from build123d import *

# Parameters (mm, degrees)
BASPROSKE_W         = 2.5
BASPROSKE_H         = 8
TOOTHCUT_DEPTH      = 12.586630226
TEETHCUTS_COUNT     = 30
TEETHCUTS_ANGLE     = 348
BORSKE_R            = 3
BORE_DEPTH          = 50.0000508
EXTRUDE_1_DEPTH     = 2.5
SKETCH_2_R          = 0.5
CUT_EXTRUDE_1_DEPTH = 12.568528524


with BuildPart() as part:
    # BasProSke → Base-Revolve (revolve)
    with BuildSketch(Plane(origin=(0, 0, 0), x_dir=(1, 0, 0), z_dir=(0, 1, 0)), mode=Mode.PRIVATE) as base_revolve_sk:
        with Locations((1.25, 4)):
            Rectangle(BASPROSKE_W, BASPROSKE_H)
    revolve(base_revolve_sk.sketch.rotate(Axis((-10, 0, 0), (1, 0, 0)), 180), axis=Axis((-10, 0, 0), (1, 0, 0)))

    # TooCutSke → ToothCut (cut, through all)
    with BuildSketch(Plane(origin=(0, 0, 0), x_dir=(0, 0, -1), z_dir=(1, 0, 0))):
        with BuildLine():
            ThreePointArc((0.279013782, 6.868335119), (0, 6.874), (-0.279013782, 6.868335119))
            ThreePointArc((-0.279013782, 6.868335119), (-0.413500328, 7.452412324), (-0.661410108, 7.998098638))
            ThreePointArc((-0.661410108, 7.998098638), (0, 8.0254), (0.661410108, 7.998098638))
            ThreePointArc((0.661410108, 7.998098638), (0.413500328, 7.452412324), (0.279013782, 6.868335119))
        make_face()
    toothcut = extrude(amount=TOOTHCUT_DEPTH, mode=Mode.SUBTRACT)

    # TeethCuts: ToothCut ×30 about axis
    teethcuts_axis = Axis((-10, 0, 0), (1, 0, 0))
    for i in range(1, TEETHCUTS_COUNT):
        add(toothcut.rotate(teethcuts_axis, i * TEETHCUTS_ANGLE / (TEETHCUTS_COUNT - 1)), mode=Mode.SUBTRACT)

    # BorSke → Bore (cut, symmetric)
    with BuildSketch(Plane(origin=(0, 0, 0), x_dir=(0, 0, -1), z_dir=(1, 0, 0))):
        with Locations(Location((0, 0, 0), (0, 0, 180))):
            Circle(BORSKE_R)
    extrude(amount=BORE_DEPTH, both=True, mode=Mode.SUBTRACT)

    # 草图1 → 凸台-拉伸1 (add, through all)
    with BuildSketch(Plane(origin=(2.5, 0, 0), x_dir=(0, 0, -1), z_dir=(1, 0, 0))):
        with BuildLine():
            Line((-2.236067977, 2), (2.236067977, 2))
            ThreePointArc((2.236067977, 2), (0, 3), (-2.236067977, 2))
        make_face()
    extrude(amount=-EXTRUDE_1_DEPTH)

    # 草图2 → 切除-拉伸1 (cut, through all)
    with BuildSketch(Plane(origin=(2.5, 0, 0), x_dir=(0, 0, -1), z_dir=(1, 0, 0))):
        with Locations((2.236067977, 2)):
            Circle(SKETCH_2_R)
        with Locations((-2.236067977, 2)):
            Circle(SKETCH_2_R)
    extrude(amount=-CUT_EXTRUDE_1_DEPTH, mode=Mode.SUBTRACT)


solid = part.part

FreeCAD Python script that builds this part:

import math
import FreeCAD as App
import Part
import Sketcher
Q = App.Units.Quantity

doc = App.newDocument("Part")
body = doc.addObject("PartDesign::Body", "Body")

sketch1 = body.newObject("Sketcher::SketchObject", "Sketch")
sketch1.AttachmentSupport = (doc.getObject("XZ_Plane"), [""])
sketch1.MapMode = "FlatFace"
sketch1.addGeometry(Part.LineSegment(App.Vector(0, -8, 0), App.Vector(0, 0, 0)), False)
sketch1.addGeometry(Part.LineSegment(App.Vector(0, 0, 0), App.Vector(2.5, 0, 0)), False)
sketch1.addGeometry(Part.LineSegment(App.Vector(2.5, 0, 0), App.Vector(2.5, -8, 0)), False)
sketch1.addGeometry(Part.LineSegment(App.Vector(2.5, -8, 0), App.Vector(0, -8, 0)), False)
sketch1.addConstraint(Sketcher.Constraint("Coincident", 0, 2, 1, 1))
sketch1.addConstraint(Sketcher.Constraint("Coincident", 1, 2, 2, 1))
sketch1.addConstraint(Sketcher.Constraint("Coincident", 2, 2, 3, 1))
sketch1.addConstraint(Sketcher.Constraint("Coincident", 3, 2, 0, 1))
sketch1.addConstraint(Sketcher.Constraint("Vertical", 0))
sketch1.addConstraint(Sketcher.Constraint("Horizontal", 1))
sketch1.addConstraint(Sketcher.Constraint("Vertical", 2))
sketch1.addConstraint(Sketcher.Constraint("Horizontal", 3))
sketch1.addConstraint(Sketcher.Constraint("Coincident", 0, 2, -1, 1))
sketch1.addConstraint(Sketcher.Constraint("DistanceY", 0, 1, 0, 2, Q("8 mm")))
sketch1.addConstraint(Sketcher.Constraint("DistanceX", 1, 1, 1, 2, Q("2.5 mm")))
revolution = body.newObject("PartDesign::Revolution", "Revolution")
revolution.Profile = sketch1
revolution.ReferenceAxis = (sketch1, ["H_Axis"])
revolution.Angle = 360

sketch2 = body.newObject("Sketcher::SketchObject", "Sketch001")
sketch2.AttachmentSupport = (doc.getObject("YZ_Plane"), [""])
sketch2.MapMode = "FlatFace"
sketch2.addGeometry(Part.ArcOfCircle(Part.Circle(App.Vector(0, 0, 0), App.Vector(0, 0, 1), 6.9), math.radians(-2.33), math.radians(2.33)), False)
sketch2.addGeometry(Part.ArcOfCircle(Part.Circle(App.Vector(6.5, -3.3, 0), App.Vector(0, 0, 1), 3), math.radians(60), math.radians(83)), False)
sketch2.addGeometry(Part.ArcOfCircle(Part.Circle(App.Vector(0, 0, 0), App.Vector(0, 0, 1), 8), math.radians(-4.73), math.radians(4.73)), False)
sketch2.addGeometry(Part.ArcOfCircle(Part.Circle(App.Vector(6.5, 3.3, 0), App.Vector(0, 0, 1), 3), math.radians(-83), math.radians(-60)), False)
sketch2.addConstraint(Sketcher.Constraint("Coincident", 0, 1, 1, 2))
sketch2.addConstraint(Sketcher.Constraint("Coincident", 1, 1, 2, 1))
sketch2.addConstraint(Sketcher.Constraint("Coincident", 2, 2, 3, 2))
sketch2.addConstraint(Sketcher.Constraint("Coincident", 3, 1, 0, 2))
sketch2.addConstraint(Sketcher.Constraint("Coincident", 0, 3, -1, 1))
sketch2.addConstraint(Sketcher.Constraint("Coincident", 2, 3, -1, 1))
sketch2.addConstraint(Sketcher.Constraint("Equal", 1, 3))
sketch2.addConstraint(Sketcher.Constraint("Symmetric", 1, 3, 3, 3, -1))
sketch2.addConstraint(Sketcher.Constraint("Radius", 1, Q("3 mm")))
sketch2.addConstraint(Sketcher.Constraint("Radius", 0, Q("6.874 mm")))
sketch2.addConstraint(Sketcher.Constraint("Radius", 2, Q("8.0254 mm")))
sketch2.addConstraint(Sketcher.Constraint("DistanceX", -1, 1, 1, 1, Q("7.998099 mm")))
sketch2.addConstraint(Sketcher.Constraint("DistanceX", -1, 1, 1, 3, Q("6.49059 mm")))
pocket1 = body.newObject("PartDesign::Pocket", "Pocket")
pocket1.Profile = sketch2
pocket1.Type = "ThroughAll"
pocket1.Reversed = True
doc.recompute()

polarpattern = body.newObject("PartDesign::PolarPattern", "PolarPattern")
polarpattern.Originals = [pocket1]
polarpattern.Axis = (doc.getObject("X_Axis"), [""])
polarpattern.Angle = 360
polarpattern.Occurrences = 30
body.Tip = polarpattern

sketch3 = body.newObject("Sketcher::SketchObject", "Sketch002")
sketch3.AttachmentSupport = (doc.getObject("YZ_Plane"), [""])
sketch3.MapMode = "FlatFace"
sketch3.addGeometry(Part.Circle(App.Vector(0, 0, 0), App.Vector(0, 0, 1), 3), False)
sketch3.addConstraint(Sketcher.Constraint("Coincident", 0, 3, -1, 1))
sketch3.addConstraint(Sketcher.Constraint("Diameter", 0, Q("6 mm")))
pocket2 = body.newObject("PartDesign::Pocket", "Pocket001")
pocket2.Profile = sketch3
pocket2.Length = 100.000102
pocket2.Midplane = True

sketch4 = body.newObject("Sketcher::SketchObject", "Sketch003")
sketch4.AttachmentSupport = (doc.getObject("YZ_Plane"), [""])
sketch4.MapMode = "FlatFace"
sketch4.AttachmentOffset = App.Placement(App.Vector(0, 0, 2.5), App.Rotation())
sketch4.addGeometry(Part.LineSegment(App.Vector(2, 2.2, 0), App.Vector(2, -2.2, 0)), False)
sketch4.addGeometry(Part.ArcOfCircle(Part.Circle(App.Vector(0, 0, 0), App.Vector(0, 0, 1), 3), math.radians(-48), math.radians(48)), False)
sketch4.addConstraint(Sketcher.Constraint("Coincident", 0, 1, 1, 2))
sketch4.addConstraint(Sketcher.Constraint("Coincident", 1, 1, 0, 2))
sketch4.addConstraint(Sketcher.Constraint("Vertical", 0))
sketch4.addConstraint(Sketcher.Constraint("Coincident", 1, 3, -1, 1))
sketch4.addConstraint(Sketcher.Constraint("Radius", 1, Q("3 mm")))
sketch4.addConstraint(Sketcher.Constraint("DistanceX", -1, 1, 0, 1, Q("2 mm")))
pad1 = body.newObject("PartDesign::Pad", "Pad")
pad1.Profile = sketch4
pad1.Length = 2.5
pad1.Reversed = True

sketch5 = body.newObject("Sketcher::SketchObject", "Sketch004")
sketch5.AttachmentSupport = (doc.getObject("YZ_Plane"), [""])
sketch5.MapMode = "FlatFace"
sketch5.AttachmentOffset = App.Placement(App.Vector(0, 0, 2.5), App.Rotation())
sketch5.addGeometry(Part.Circle(App.Vector(2, -2.2, 0), App.Vector(0, 0, 1), 0.5), False)
sketch5.addGeometry(Part.Circle(App.Vector(2, 2.2, 0), App.Vector(0, 0, 1), 0.5), False)
sketch5.addConstraint(Sketcher.Constraint("Equal", 0, 1))
sketch5.addConstraint(Sketcher.Constraint("Symmetric", 0, 3, 1, 3, -1))
sketch5.addConstraint(Sketcher.Constraint("Diameter", 0, Q("1 mm")))
sketch5.addConstraint(Sketcher.Constraint("DistanceX", -1, 1, 0, 3, Q("2 mm")))
sketch5.addConstraint(Sketcher.Constraint("DistanceY", 0, 3, -1, 1, Q("2.236068 mm")))
pocket3 = body.newObject("PartDesign::Pocket", "Pocket002")
pocket3.Profile = sketch5
pocket3.Type = "ThroughAll"

doc.recompute()
